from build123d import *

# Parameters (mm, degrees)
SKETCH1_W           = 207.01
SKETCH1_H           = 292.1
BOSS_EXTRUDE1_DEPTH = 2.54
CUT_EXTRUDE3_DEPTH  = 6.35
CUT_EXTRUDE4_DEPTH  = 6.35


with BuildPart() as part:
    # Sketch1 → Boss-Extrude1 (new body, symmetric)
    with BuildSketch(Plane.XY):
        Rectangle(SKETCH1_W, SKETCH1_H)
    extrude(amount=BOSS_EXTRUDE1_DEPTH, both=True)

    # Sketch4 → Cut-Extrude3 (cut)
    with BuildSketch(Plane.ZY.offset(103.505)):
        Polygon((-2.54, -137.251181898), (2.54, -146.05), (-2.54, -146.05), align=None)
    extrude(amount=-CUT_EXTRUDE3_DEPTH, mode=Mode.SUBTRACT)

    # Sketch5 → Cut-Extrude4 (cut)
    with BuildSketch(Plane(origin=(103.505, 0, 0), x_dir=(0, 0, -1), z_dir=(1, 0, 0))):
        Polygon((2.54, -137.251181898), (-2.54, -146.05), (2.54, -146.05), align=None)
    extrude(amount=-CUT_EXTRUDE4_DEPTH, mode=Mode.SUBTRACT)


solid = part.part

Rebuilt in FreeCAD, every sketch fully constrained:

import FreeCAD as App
import Part
import Sketcher
from FreeCAD import Vector
Q = App.Units.Quantity


def add_polygon(sketch, points):
    """Adds a closed chain of lines whose ends are joined by coincident constraints."""
    first, n = sketch.GeometryCount, len(points)
    for a, b in zip(points, points[1:] + points[:1]):
        sketch.addGeometry(Part.LineSegment(App.Vector(*a, 0), App.Vector(*b, 0)), False)
    for i in range(n):
        sketch.addConstraint(Sketcher.Constraint("Coincident", first + i, 2, first + (i + 1) % n, 1))

doc = App.newDocument("Part")
body = doc.addObject("PartDesign::Body", "Body")

# Sketch on XY plane
sketch1 = doc.addObject("Sketcher::SketchObject", "Sketch")
body.addObject(sketch1)
sketch1.AttachmentSupport = (doc.XY_Plane, [""])
sketch1.MapMode = "FlatFace"
add_polygon(sketch1, [(-104, 146), (-104, -146), (104, -146), (104, 146)])  # lines 0-3
sketch1.addConstraint(Sketcher.Constraint("Vertical", 0))
sketch1.addConstraint(Sketcher.Constraint("Horizontal", 1))
sketch1.addConstraint(Sketcher.Constraint("Vertical", 2))
sketch1.addConstraint(Sketcher.Constraint("Horizontal", 3))
sketch1.addConstraint(Sketcher.Constraint("Symmetric", 0, 2, 2, 2, -1, 1))
sketch1.addConstraint(Sketcher.Constraint("DistanceY", 0, 2, 0, 1, Q("11.5 in")))
sketch1.addConstraint(Sketcher.Constraint("DistanceX", 1, 1, 1, 2, Q("8.15 in")))
pad1 = doc.addObject("PartDesign::Pad", "Pad")
body.addObject(pad1)
pad1.Profile = sketch1
pad1.Length = Q("0.2 in")
pad1.Midplane = True

# Sketch on YZ plane
sketch2 = doc.addObject("Sketcher::SketchObject", "Sketch001")
body.addObject(sketch2)
sketch2.AttachmentSupport = (doc.YZ_Plane, [""])
sketch2.MapMode = "FlatFace"
sketch2.AttachmentOffset = App.Placement(Vector(0, 0, -4.075 * 25.4), App.Rotation())
add_polygon(sketch2, [(-146, 3), (-137, -3), (-146, -3)])  # lines 0-2
sketch2.addConstraint(Sketcher.Constraint("Horizontal", 1))
sketch2.addConstraint(Sketcher.Constraint("Vertical", 2))
sketch2.addConstraint(Sketcher.Constraint("DistanceY", 2, 1, 2, 2, Q("0.2 in")))
sketch2.addConstraint(Sketcher.Constraint("Angle", 0, Q("-30 deg")))
sketch2.addConstraint(Sketcher.Constraint("DistanceY", 0, 2, -1, 1, Q("0.1 in")))
sketch2.addConstraint(Sketcher.Constraint("DistanceX", 1, 2, -1, 1, Q("5.75 in")))
pocket1 = doc.addObject("PartDesign::Pocket", "Pocket")
body.addObject(pocket1)
pocket1.Profile = sketch2
pocket1.Length = Q("0.25 in")
pocket1.Reversed = True

# Sketch on YZ plane
sketch3 = doc.addObject("Sketcher::SketchObject", "Sketch002")
body.addObject(sketch3)
sketch3.AttachmentSupport = (doc.YZ_Plane, [""])
sketch3.MapMode = "FlatFace"
sketch3.AttachmentOffset = App.Placement(Vector(0, 0, 4.075 * 25.4), App.Rotation())
add_polygon(sketch3, [(-137, -3), (-146, 3), (-146, -3)])  # lines 0-2
sketch3.addConstraint(Sketcher.Constraint("Vertical", 1))
sketch3.addConstraint(Sketcher.Constraint("Horizontal", 2))
sketch3.addConstraint(Sketcher.Constraint("DistanceY", 1, 2, 1, 1, Q("0.2 in")))
sketch3.addConstraint(Sketcher.Constraint("Angle", 0, Q("150 deg")))
sketch3.addConstraint(Sketcher.Constraint("DistanceY", -1, 1, 0, 2, Q("0.1 in")))
sketch3.addConstraint(Sketcher.Constraint("DistanceX", 0, 2, -1, 1, Q("5.75 in")))
pocket2 = doc.addObject("PartDesign::Pocket", "Pocket001")
body.addObject(pocket2)
pocket2.Profile = sketch3
pocket2.Length = Q("0.25 in")

doc.recompute()
